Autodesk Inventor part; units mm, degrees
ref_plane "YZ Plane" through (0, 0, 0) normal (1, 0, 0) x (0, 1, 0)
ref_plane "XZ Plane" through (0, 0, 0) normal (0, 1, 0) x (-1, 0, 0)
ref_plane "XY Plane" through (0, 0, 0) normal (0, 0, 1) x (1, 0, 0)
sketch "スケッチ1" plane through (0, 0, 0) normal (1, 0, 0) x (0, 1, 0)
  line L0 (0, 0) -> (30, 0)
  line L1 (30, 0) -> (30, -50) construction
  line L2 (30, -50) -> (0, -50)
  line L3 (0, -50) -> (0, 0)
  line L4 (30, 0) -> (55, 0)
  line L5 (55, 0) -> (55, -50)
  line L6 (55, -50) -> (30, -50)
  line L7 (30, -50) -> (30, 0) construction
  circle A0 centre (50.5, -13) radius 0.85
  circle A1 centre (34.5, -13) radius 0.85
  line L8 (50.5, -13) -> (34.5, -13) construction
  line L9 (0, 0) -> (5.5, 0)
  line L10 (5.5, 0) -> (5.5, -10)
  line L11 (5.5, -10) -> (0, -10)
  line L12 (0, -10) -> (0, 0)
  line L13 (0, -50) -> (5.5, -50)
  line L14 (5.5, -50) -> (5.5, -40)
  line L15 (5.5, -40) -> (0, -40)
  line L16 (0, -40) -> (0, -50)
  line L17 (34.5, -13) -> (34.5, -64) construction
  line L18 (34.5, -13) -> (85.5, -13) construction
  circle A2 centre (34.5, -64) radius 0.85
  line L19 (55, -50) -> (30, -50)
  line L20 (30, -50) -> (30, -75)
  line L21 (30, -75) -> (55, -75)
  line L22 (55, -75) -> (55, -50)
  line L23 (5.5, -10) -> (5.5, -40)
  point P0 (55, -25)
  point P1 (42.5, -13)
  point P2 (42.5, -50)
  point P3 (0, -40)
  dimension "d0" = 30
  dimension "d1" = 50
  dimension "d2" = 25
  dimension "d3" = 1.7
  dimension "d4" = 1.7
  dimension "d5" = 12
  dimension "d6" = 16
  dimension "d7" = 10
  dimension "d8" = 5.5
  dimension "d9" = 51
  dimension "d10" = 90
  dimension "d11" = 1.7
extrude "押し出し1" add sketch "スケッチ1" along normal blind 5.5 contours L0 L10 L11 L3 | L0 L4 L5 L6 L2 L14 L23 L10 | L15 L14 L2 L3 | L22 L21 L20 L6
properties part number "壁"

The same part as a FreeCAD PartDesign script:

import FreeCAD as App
import Part
import Sketcher

V = App.Vector
Q = App.Units.Quantity

doc = App.newDocument("Part")
body = doc.addObject("PartDesign::Body", "Body")

# Sketch on YZ plane
sketch1 = body.newObject("Sketcher::SketchObject", "Sketch")
sketch1.AttachmentSupport = (doc.getObject("YZ_Plane"), [""])
sketch1.MapMode = "FlatFace"
sketch1.addGeometry([
    Part.LineSegment(V(0, 0, 0), V(0, -10, 0)),  # 0
    Part.LineSegment(V(0, -10, 0), V(5.5, -10, 0)),  # 1
    Part.LineSegment(V(5.5, -10, 0), V(5.5, -40, 0)),  # 2
    Part.LineSegment(V(5.5, -40, 0), V(0, -40, 0)),  # 3
    Part.LineSegment(V(0, -40, 0), V(0, -50, 0)),  # 4
    Part.LineSegment(V(0, -50, 0), V(30, -50, 0)),  # 5
    Part.LineSegment(V(30, -50, 0), V(30, -75, 0)),  # 6
    Part.LineSegment(V(30, -75, 0), V(55, -75, 0)),  # 7
    Part.LineSegment(V(55, -75, 0), V(55, 0, 0)),  # 8
    Part.LineSegment(V(55, 0, 0), V(0, 0, 0)),  # 9
    Part.Circle(V(50.5, -13, 0), V(0, 0, 1), 0.85),  # 10
    Part.Circle(V(34.5, -13, 0), V(0, 0, 1), 0.85),  # 11
    Part.Circle(V(34.5, -64, 0), V(0, 0, 1), 0.85),  # 12
], False)
sketch1.addConstraint([
    Sketcher.Constraint("Coincident", 0, 2, 1, 1),
    Sketcher.Constraint("Coincident", 1, 2, 2, 1),
    Sketcher.Constraint("Coincident", 2, 2, 3, 1),
    Sketcher.Constraint("Coincident", 3, 2, 4, 1),
    Sketcher.Constraint("Coincident", 4, 2, 5, 1),
    Sketcher.Constraint("Coincident", 5, 2, 6, 1),
    Sketcher.Constraint("Coincident", 6, 2, 7, 1),
    Sketcher.Constraint("Coincident", 7, 2, 8, 1),
    Sketcher.Constraint("Coincident", 8, 2, 9, 1),
    Sketcher.Constraint("Coincident", 9, 2, 0, 1),
    Sketcher.Constraint("Vertical", 0),
    Sketcher.Constraint("Horizontal", 1),
    Sketcher.Constraint("Vertical", 2),
    Sketcher.Constraint("Horizontal", 3),
    Sketcher.Constraint("Vertical", 4),
    Sketcher.Constraint("Horizontal", 5),
    Sketcher.Constraint("Vertical", 6),
    Sketcher.Constraint("Horizontal", 7),
    Sketcher.Constraint("Vertical", 8),
    Sketcher.Constraint("Horizontal", 9),
    Sketcher.Constraint("Coincident", 9, 2, -1, 1),
    Sketcher.Constraint("Equal", 10, 11),
    Sketcher.Constraint("Equal", 11, 12),
    Sketcher.Constraint("PointOnObject", 3, 2, -2),
    Sketcher.Constraint("Horizontal", 10, 3, 11, 3),
    Sketcher.Constraint("Vertical", 11, 3, 12, 3),
    Sketcher.Constraint("Equal", 5, 2),
    Sketcher.Constraint("Equal", 0, 4),
    Sketcher.Constraint("Equal", 7, 6),
    Sketcher.Constraint("Diameter", 10, Q("1.7 mm")),
    Sketcher.Constraint("DistanceX", 5, 1, 5, 2, Q("30 mm")),
    Sketcher.Constraint("DistanceX", 7, 1, 7, 2, Q("25 mm")),
    Sketcher.Constraint("DistanceY", 0, 2, 0, 1, Q("10 mm")),
    Sketcher.Constraint("DistanceX", 1, 1, 1, 2, Q("5.5 mm")),
    Sketcher.Constraint("DistanceX", 11, 3, 10, 3, Q("16 mm")),
    Sketcher.Constraint("DistanceY", 12, 3, 11, 3, Q("51 mm")),
    Sketcher.Constraint("DistanceY", 10, 3, -1, 1, Q("13 mm")),
    Sketcher.Constraint("DistanceX", 1, 2, 11, 3, Q("29 mm")),
])
pad1 = body.newObject("PartDesign::Pad", "Pad")
pad1.Profile = sketch1
pad1.Length = 5.5

doc.recompute()
